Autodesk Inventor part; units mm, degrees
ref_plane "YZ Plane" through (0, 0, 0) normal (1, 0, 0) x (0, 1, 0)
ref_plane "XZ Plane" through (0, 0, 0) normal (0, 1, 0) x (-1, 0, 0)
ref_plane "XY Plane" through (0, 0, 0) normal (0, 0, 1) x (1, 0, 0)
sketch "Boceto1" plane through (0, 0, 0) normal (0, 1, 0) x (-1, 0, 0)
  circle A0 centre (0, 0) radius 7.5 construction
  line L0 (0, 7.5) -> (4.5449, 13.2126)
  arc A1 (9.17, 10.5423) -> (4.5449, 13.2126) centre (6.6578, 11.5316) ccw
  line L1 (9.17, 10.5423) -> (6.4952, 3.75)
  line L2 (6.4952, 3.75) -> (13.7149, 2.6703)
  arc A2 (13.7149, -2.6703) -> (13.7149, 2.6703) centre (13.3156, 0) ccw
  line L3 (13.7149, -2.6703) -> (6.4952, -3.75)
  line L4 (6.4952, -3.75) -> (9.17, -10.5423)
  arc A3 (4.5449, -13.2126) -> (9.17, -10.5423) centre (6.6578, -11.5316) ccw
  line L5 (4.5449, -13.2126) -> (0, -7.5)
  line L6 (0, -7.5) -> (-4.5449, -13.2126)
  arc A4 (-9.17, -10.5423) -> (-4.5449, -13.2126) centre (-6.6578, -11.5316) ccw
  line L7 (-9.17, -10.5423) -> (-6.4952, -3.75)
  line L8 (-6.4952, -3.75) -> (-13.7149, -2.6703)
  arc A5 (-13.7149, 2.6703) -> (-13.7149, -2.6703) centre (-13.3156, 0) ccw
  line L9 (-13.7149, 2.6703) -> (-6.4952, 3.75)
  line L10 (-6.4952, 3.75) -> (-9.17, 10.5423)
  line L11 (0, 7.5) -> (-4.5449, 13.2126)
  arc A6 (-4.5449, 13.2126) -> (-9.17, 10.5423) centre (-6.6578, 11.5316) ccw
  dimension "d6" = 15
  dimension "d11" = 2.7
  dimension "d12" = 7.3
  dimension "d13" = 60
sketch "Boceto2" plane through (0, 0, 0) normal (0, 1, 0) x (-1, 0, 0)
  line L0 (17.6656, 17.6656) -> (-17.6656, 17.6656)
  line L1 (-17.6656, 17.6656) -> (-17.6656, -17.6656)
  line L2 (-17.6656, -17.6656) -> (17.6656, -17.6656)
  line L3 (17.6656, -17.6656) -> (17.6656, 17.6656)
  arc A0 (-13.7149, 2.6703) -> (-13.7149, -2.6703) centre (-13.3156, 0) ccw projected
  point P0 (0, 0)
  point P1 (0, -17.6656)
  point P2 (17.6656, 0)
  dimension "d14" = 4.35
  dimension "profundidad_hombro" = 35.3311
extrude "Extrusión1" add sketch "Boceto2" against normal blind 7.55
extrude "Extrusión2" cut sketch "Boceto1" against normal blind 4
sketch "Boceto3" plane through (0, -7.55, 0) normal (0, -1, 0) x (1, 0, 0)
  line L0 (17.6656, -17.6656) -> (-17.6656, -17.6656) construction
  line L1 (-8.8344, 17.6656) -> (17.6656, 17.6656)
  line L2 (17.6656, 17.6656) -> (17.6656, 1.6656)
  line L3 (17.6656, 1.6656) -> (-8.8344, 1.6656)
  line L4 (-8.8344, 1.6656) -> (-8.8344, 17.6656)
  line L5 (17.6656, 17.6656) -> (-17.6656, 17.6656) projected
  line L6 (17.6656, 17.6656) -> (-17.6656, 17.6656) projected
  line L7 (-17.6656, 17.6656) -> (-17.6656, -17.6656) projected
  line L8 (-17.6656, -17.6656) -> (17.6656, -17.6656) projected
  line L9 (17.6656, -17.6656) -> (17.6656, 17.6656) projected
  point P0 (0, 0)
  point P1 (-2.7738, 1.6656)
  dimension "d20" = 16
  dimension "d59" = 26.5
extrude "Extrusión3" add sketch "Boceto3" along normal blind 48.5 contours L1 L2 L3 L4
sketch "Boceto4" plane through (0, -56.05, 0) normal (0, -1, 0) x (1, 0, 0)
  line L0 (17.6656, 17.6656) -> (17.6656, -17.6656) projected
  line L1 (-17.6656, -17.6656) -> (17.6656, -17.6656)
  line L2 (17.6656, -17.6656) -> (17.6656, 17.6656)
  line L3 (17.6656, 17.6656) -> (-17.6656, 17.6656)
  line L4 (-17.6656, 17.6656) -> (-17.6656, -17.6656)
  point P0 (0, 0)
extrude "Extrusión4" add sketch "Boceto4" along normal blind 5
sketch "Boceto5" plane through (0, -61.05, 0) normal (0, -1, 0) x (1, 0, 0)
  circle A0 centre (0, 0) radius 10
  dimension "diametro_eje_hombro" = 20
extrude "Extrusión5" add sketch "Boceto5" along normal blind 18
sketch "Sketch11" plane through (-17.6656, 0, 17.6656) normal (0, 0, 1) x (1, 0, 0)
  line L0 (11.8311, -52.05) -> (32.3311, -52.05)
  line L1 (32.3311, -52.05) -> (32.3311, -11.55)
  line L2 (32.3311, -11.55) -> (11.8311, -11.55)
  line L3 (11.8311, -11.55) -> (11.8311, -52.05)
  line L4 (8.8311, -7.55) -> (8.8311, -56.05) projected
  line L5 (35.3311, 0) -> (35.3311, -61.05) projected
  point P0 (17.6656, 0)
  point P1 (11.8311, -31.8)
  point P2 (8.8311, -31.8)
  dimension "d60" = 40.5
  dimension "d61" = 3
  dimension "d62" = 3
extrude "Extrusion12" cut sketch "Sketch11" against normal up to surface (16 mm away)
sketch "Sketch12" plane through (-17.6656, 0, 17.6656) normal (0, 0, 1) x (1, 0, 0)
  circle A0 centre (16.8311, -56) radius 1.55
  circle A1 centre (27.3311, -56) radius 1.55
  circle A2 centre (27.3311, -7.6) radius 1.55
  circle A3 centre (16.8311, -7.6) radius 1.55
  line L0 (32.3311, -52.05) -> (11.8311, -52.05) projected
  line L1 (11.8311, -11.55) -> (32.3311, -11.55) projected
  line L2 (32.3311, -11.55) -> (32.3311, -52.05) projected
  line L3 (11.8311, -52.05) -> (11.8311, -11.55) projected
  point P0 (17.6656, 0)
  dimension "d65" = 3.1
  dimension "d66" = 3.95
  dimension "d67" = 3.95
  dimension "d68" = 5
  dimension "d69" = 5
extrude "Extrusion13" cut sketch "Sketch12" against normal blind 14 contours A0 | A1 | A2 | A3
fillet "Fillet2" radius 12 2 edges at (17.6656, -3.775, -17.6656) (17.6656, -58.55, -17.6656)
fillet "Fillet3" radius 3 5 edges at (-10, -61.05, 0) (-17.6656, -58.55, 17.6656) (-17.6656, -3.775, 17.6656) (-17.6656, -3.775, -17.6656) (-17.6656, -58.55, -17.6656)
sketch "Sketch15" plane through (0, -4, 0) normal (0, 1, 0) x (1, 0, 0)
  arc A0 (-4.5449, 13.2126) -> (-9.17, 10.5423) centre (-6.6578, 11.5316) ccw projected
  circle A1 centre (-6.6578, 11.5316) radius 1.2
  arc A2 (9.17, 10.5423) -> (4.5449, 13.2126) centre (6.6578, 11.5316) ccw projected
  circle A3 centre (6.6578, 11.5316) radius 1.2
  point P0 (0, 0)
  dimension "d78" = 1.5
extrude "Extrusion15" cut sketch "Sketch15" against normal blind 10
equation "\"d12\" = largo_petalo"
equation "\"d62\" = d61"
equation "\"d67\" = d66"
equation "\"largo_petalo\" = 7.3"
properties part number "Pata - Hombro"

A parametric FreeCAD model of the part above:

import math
import FreeCAD as App
import Part
import Sketcher


def edges_at(feature, points):
    """Names of the edges that pass closest to the given points."""
    edges = feature.Shape.Edges
    near = lambda p: min(range(len(edges)), key=lambda i: edges[i].distToShape(Part.Vertex(*p))[0])
    return sorted({f"Edge{near(p) + 1}" for p in points})


def add_polygon(sketch, points):
    """Adds a closed chain of lines whose ends are joined by coincident constraints."""
    first, n = sketch.GeometryCount, len(points)
    for a, b in zip(points, points[1:] + points[:1]):
        sketch.addGeometry(Part.LineSegment(App.Vector(*a, 0), App.Vector(*b, 0)), False)
    for i in range(n):
        sketch.addConstraint(Sketcher.Constraint("Coincident", first + i, 2, first + (i + 1) % n, 1))

doc = App.newDocument("Part")
params = doc.addObject("Spreadsheet::Sheet", "Params")
for row, (alias, value) in enumerate([
    ("pad1_length", "7.55 mm"),
    ("sketch2_radius", "2.7 mm"),
    ("sketch2_length", "7.3 mm"),
    ("pocket1_length", "4 mm"),
    ("sketch3_height", "16 mm"),
    ("sketch3_width", "26.5 mm"),
    ("pad2_length", "48.5 mm"),
    ("pad3_length", "5 mm"),
    ("sketch5_diameter", "20 mm"),
    ("pad4_length", "18 mm"),
    ("sketch6_height", "40.5 mm"),
    ("sketch6_width", "20.5 mm"),
    ("pocket2_length", "16 mm"),
    ("sketch7_diameter", "3.1 mm"),
    ("pocket3_length", "14 mm"),
    ("fillet_radius", "12 mm"),
    ("fillet2_radius", "3 mm"),
    ("sketch8_diameter", "2.4 mm"),
    ("pocket4_length", "10 mm"),
], start=1):
    params.set(f"A{row}", alias)
    params.set(f"B{row}", "=" + value)
    params.setAlias(f"B{row}", alias)

body = doc.addObject("PartDesign::Body", "Body")

# Sketch on XZ plane
sketch1 = doc.addObject("Sketcher::SketchObject", "Sketch")
body.addObject(sketch1)
sketch1.AttachmentSupport = (doc.XZ_Plane, [""])
sketch1.MapMode = "FlatFace"
add_polygon(sketch1, [(-18, -18), (-18, 18), (18, 18), (18, -18)])  # lines 0-3
sketch1.addConstraint(Sketcher.Constraint("Vertical", 0))
sketch1.addConstraint(Sketcher.Constraint("Horizontal", 1))
sketch1.addConstraint(Sketcher.Constraint("Vertical", 2))
sketch1.addConstraint(Sketcher.Constraint("Horizontal", 3))
sketch1.addConstraint(Sketcher.Constraint("Symmetric", 0, 2, 2, 2, -1, 1))
sketch1.addConstraint(Sketcher.Constraint("Equal", 3, 0))
sketch1.addConstraint(Sketcher.Constraint("DistanceX", 1, 1, 1, 2, 35.3312))
pad1 = doc.addObject("PartDesign::Pad", "Pad")
body.addObject(pad1)
pad1.Profile = sketch1
pad1.setExpression("Length", "Params.pad1_length")

# Sketch on XZ plane
sketch2 = doc.addObject("Sketcher::SketchObject", "Sketch001")
body.addObject(sketch2)
sketch2.AttachmentSupport = (doc.XZ_Plane, [""])
sketch2.MapMode = "FlatFace"
sketch2.addGeometry(Part.LineSegment(App.Vector(-4.5, 13.2, 0), App.Vector(0, 7.5, 0)), False)
sketch2.addGeometry(Part.LineSegment(App.Vector(0, 7.5, 0), App.Vector(4.5, 13.2, 0)), False)
sketch2.addGeometry(Part.ArcOfCircle(Part.Circle(App.Vector(6.7, 11.5, 0), App.Vector(0, 0, 1), 2.7), math.radians(-21), math.radians(141)), False)
sketch2.addGeometry(Part.LineSegment(App.Vector(9.2, 10.5, 0), App.Vector(6.5, 3.8, 0)), False)
sketch2.addGeometry(Part.LineSegment(App.Vector(6.5, 3.8, 0), App.Vector(13.7, 2.7, 0)), False)
sketch2.addGeometry(Part.ArcOfCircle(Part.Circle(App.Vector(13.3, 0, 0), App.Vector(0, 0, 1), 2.7), math.radians(-81), math.radians(81)), False)
sketch2.addGeometry(Part.LineSegment(App.Vector(13.7, -2.7, 0), App.Vector(6.5, -3.8, 0)), False)
sketch2.addGeometry(Part.LineSegment(App.Vector(6.5, -3.8, 0), App.Vector(9.2, -10.5, 0)), False)
sketch2.addGeometry(Part.ArcOfCircle(Part.Circle(App.Vector(6.7, -11.5, 0), App.Vector(0, 0, 1), 2.7), math.radians(-141), math.radians(21)), False)
sketch2.addGeometry(Part.LineSegment(App.Vector(4.5, -13.2, 0), App.Vector(0, -7.5, 0)), False)
sketch2.addGeometry(Part.LineSegment(App.Vector(0, -7.5, 0), App.Vector(-4.5, -13.2, 0)), False)
sketch2.addGeometry(Part.ArcOfCircle(Part.Circle(App.Vector(-6.7, -11.5, 0), App.Vector(0, 0, 1), 2.7), math.radians(159), math.radians(321)), False)
sketch2.addGeometry(Part.LineSegment(App.Vector(-9.2, -10.5, 0), App.Vector(-6.5, -3.8, 0)), False)
sketch2.addGeometry(Part.LineSegment(App.Vector(-6.5, -3.8, 0), App.Vector(-13.7, -2.7, 0)), False)
sketch2.addGeometry(Part.ArcOfCircle(Part.Circle(App.Vector(-13.3, 0, 0), App.Vector(0, 0, 1), 2.7), math.radians(99), math.radians(261)), False)
sketch2.addGeometry(Part.LineSegment(App.Vector(-13.7, 2.7, 0), App.Vector(-6.5, 3.8, 0)), False)
sketch2.addGeometry(Part.LineSegment(App.Vector(-6.5, 3.8, 0), App.Vector(-9.2, 10.5, 0)), False)
sketch2.addGeometry(Part.ArcOfCircle(Part.Circle(App.Vector(-6.7, 11.5, 0), App.Vector(0, 0, 1), 2.7), math.radians(39), math.radians(201)), False)
sketch2.addConstraint(Sketcher.Constraint("Coincident", 0, 2, 1, 1))
sketch2.addConstraint(Sketcher.Constraint("Tangent", 1, 2, 2, 2))
sketch2.addConstraint(Sketcher.Constraint("Tangent", 2, 1, 3, 1))
sketch2.addConstraint(Sketcher.Constraint("Coincident", 3, 2, 4, 1))
sketch2.addConstraint(Sketcher.Constraint("Tangent", 4, 2, 5, 2))
sketch2.addConstraint(Sketcher.Constraint("Tangent", 5, 1, 6, 1))
sketch2.addConstraint(Sketcher.Constraint("Coincident", 6, 2, 7, 1))
sketch2.addConstraint(Sketcher.Constraint("Tangent", 7, 2, 8, 2))
sketch2.addConstraint(Sketcher.Constraint("Tangent", 8, 1, 9, 1))
sketch2.addConstraint(Sketcher.Constraint("Coincident", 9, 2, 10, 1))
sketch2.addConstraint(Sketcher.Constraint("Tangent", 10, 2, 11, 2))
sketch2.addConstraint(Sketcher.Constraint("Tangent", 11, 1, 12, 1))
sketch2.addConstraint(Sketcher.Constraint("Coincident", 12, 2, 13, 1))
sketch2.addConstraint(Sketcher.Constraint("Tangent", 13, 2, 14, 2))
sketch2.addConstraint(Sketcher.Constraint("Tangent", 14, 1, 15, 1))
sketch2.addConstraint(Sketcher.Constraint("Coincident", 15, 2, 16, 1))
sketch2.addConstraint(Sketcher.Constraint("Tangent", 16, 2, 17, 2))
sketch2.addConstraint(Sketcher.Constraint("Tangent", 17, 1, 0, 1))
sketch2.addConstraint(Sketcher.Constraint("Equal", 2, 5))
sketch2.addConstraint(Sketcher.Constraint("Equal", 5, 8))
sketch2.addConstraint(Sketcher.Constraint("Equal", 8, 11))
sketch2.addConstraint(Sketcher.Constraint("Equal", 11, 14))
sketch2.addConstraint(Sketcher.Constraint("Equal", 14, 17))
sketch2.addConstraint(Sketcher.Constraint("Symmetric", 2, 3, 11, 3, -1, 1))
sketch2.addConstraint(Sketcher.Constraint("Symmetric", 5, 3, 14, 3, -1, 1))
sketch2.addConstraint(Sketcher.Constraint("Symmetric", 8, 3, 17, 3, -1, 1))
sketch2.addConstraint(Sketcher.Constraint("Symmetric", 0, 2, 9, 2, -1, 1))
sketch2.addConstraint(Sketcher.Constraint("Symmetric", 3, 2, 12, 2, -1, 1))
sketch2.addConstraint(Sketcher.Constraint("Symmetric", 6, 2, 15, 2, -1, 1))
sketch2.addConstraint(Sketcher.Constraint("Symmetric", 8, 3, 11, 3, -2))
sketch2.addConstraint(Sketcher.Constraint("Symmetric", 6, 2, 12, 2, -2))
sketch2.addConstraint(Sketcher.Constraint("PointOnObject", 5, 3, -1))
sketch2.addConstraint(Sketcher.Constraint("PointOnObject", 0, 2, -2))
sketch2.addConstraint(Sketcher.Constraint("Equal", 1, 3))
sketch2.addConstraint(Sketcher.Constraint("Equal", 3, 4))
sketch2.addConstraint(Sketcher.Constraint("Radius", 2, 2.7))
sketch2.addConstraint(Sketcher.Constraint("Distance", 0, 7.3))
sketch2.addConstraint(Sketcher.Constraint("DistanceY", -1, 1, 0, 2, 7.5))
sketch2.addConstraint(Sketcher.Constraint("DistanceY", 6, 2, 3, 2, 7.5))
sketch2.addConstraint(Sketcher.Constraint("DistanceX", -1, 1, 2, 1, 9.17))
sketch2.setExpression("Constraints[35]", "Params.sketch2_radius")
sketch2.setExpression("Constraints[36]", "Params.sketch2_length")
pocket1 = doc.addObject("PartDesign::Pocket", "Pocket")
body.addObject(pocket1)
pocket1.Profile = sketch2
pocket1.setExpression("Length", "Params.pocket1_length")
pocket1.Reversed = True

# Sketch on XZ plane
sketch3 = doc.addObject("Sketcher::SketchObject", "Sketch002")
body.addObject(sketch3)
sketch3.AttachmentSupport = (doc.XZ_Plane, [""])
sketch3.MapMode = "FlatFace"
sketch3.AttachmentOffset = App.Placement(App.Vector(0, 0, 7.55), App.Rotation())
add_polygon(sketch3, [(18, 18), (-9, 18), (-9, 2), (18, 2)])  # lines 0-3
sketch3.addConstraint(Sketcher.Constraint("Horizontal", 0))
sketch3.addConstraint(Sketcher.Constraint("Vertical", 1))
sketch3.addConstraint(Sketcher.Constraint("Horizontal", 2))
sketch3.addConstraint(Sketcher.Constraint("Vertical", 3))
sketch3.addConstraint(Sketcher.Constraint("DistanceY", 1, 2, 1, 1, 16.0))
sketch3.addConstraint(Sketcher.Constraint("DistanceX", 0, 2, 0, 1, 26.5))
sketch3.addConstraint(Sketcher.Constraint("DistanceX", 0, 2, -1, 1, 8.8344))
sketch3.addConstraint(Sketcher.Constraint("DistanceY", -1, 1, 0, 2, 17.6656))
sketch3.setExpression("Constraints[8]", "Params.sketch3_height")
sketch3.setExpression("Constraints[9]", "Params.sketch3_width")
pad2 = doc.addObject("PartDesign::Pad", "Pad001")
body.addObject(pad2)
pad2.Profile = sketch3
pad2.setExpression("Length", "Params.pad2_length")

# Sketch on XZ plane
sketch4 = doc.addObject("Sketcher::SketchObject", "Sketch003")
body.addObject(sketch4)
sketch4.AttachmentSupport = (doc.XZ_Plane, [""])
sketch4.MapMode = "FlatFace"
sketch4.AttachmentOffset = App.Placement(App.Vector(0, 0, 56.05), App.Rotation())
add_polygon(sketch4, [(18, -18), (18, 18), (-18, 18), (-18, -18)])  # lines 0-3
sketch4.addConstraint(Sketcher.Constraint("Vertical", 0))
sketch4.addConstraint(Sketcher.Constraint("Horizontal", 1))
sketch4.addConstraint(Sketcher.Constraint("Vertical", 2))
sketch4.addConstraint(Sketcher.Constraint("Horizontal", 3))
sketch4.addConstraint(Sketcher.Constraint("Symmetric", 0, 2, 2, 2, -1, 1))
sketch4.addConstraint(Sketcher.Constraint("Equal", 3, 0))
sketch4.addConstraint(Sketcher.Constraint("DistanceX", 1, 2, 1, 1, 35.3312))
pad3 = doc.addObject("PartDesign::Pad", "Pad002")
body.addObject(pad3)
pad3.Profile = sketch4
pad3.setExpression("Length", "Params.pad3_length")

# Sketch on XZ plane
sketch5 = doc.addObject("Sketcher::SketchObject", "Sketch004")
body.addObject(sketch5)
sketch5.AttachmentSupport = (doc.XZ_Plane, [""])
sketch5.MapMode = "FlatFace"
sketch5.AttachmentOffset = App.Placement(App.Vector(0, 0, 61.05), App.Rotation())
sketch5.addGeometry(Part.Circle(App.Vector(0, 0, 0), App.Vector(0, 0, 1), 10), False)
sketch5.addConstraint(Sketcher.Constraint("Coincident", 0, 3, -1, 1))
sketch5.addConstraint(Sketcher.Constraint("Diameter", 0, 20.0))
sketch5.setExpression("Constraints[1]", "Params.sketch5_diameter")
pad4 = doc.addObject("PartDesign::Pad", "Pad003")
body.addObject(pad4)
pad4.Profile = sketch5
pad4.setExpression("Length", "Params.pad4_length")

# Sketch on XY plane
sketch6 = doc.addObject("Sketcher::SketchObject", "Sketch005")
body.addObject(sketch6)
sketch6.AttachmentSupport = (doc.XY_Plane, [""])
sketch6.MapMode = "FlatFace"
sketch6.AttachmentOffset = App.Placement(App.Vector(0, 0, 17.6656), App.Rotation())
add_polygon(sketch6, [(-6, -12), (-6, -52), (15, -52), (15, -12)])  # lines 0-3
sketch6.addConstraint(Sketcher.Constraint("Vertical", 0))
sketch6.addConstraint(Sketcher.Constraint("Horizontal", 1))
sketch6.addConstraint(Sketcher.Constraint("Vertical", 2))
sketch6.addConstraint(Sketcher.Constraint("Horizontal", 3))
sketch6.addConstraint(Sketcher.Constraint("DistanceY", 0, 2, 0, 1, 40.5))
sketch6.addConstraint(Sketcher.Constraint("DistanceX", 1, 1, 1, 2, 20.5))
sketch6.addConstraint(Sketcher.Constraint("DistanceY", 0, 2, -1, 1, 52.05))
sketch6.addConstraint(Sketcher.Constraint("DistanceX", 0, 2, -1, 1, 5.8345))
sketch6.setExpression("Constraints[8]", "Params.sketch6_height")
sketch6.setExpression("Constraints[9]", "Params.sketch6_width")
pocket2 = doc.addObject("PartDesign::Pocket", "Pocket001")
body.addObject(pocket2)
pocket2.Profile = sketch6
pocket2.setExpression("Length", "Params.pocket2_length")

# Sketch on XY plane
sketch7 = doc.addObject("Sketcher::SketchObject", "Sketch006")
body.addObject(sketch7)
sketch7.AttachmentSupport = (doc.XY_Plane, [""])
sketch7.MapMode = "FlatFace"
sketch7.AttachmentOffset = App.Placement(App.Vector(0, 0, 17.6656), App.Rotation())
sketch7.addGeometry(Part.Circle(App.Vector(-0.8, -56, 0), App.Vector(0, 0, 1), 1.6), False)
sketch7.addGeometry(Part.Circle(App.Vector(9.7, -56, 0), App.Vector(0, 0, 1), 1.6), False)
sketch7.addGeometry(Part.Circle(App.Vector(9.7, -7.6, 0), App.Vector(0, 0, 1), 1.6), False)
sketch7.addGeometry(Part.Circle(App.Vector(-0.8, -7.6, 0), App.Vector(0, 0, 1), 1.6), False)
sketch7.addConstraint(Sketcher.Constraint("Equal", 0, 1))
sketch7.addConstraint(Sketcher.Constraint("Equal", 1, 2))
sketch7.addConstraint(Sketcher.Constraint("Equal", 2, 3))
sketch7.addConstraint(Sketcher.Constraint("Horizontal", 0, 3, 1, 3))
sketch7.addConstraint(Sketcher.Constraint("Horizontal", 2, 3, 3, 3))
sketch7.addConstraint(Sketcher.Constraint("Vertical", 1, 3, 2, 3))
sketch7.addConstraint(Sketcher.Constraint("Vertical", 0, 3, 3, 3))
sketch7.addConstraint(Sketcher.Constraint("Diameter", 0, 3.1))
sketch7.addConstraint(Sketcher.Constraint("DistanceY", 0, 3, -1, 1, 56.0))
sketch7.addConstraint(Sketcher.Constraint("DistanceY", 2, 3, -1, 1, 7.6))
sketch7.addConstraint(Sketcher.Constraint("DistanceX", 0, 3, 1, 3, 10.5))
sketch7.addConstraint(Sketcher.Constraint("DistanceX", 0, 3, -1, 1, 0.8345))
sketch7.setExpression("Constraints[7]", "Params.sketch7_diameter")
pocket3 = doc.addObject("PartDesign::Pocket", "Pocket002")
body.addObject(pocket3)
pocket3.Profile = sketch7
pocket3.setExpression("Length", "Params.pocket3_length")
doc.recompute()

fillet = doc.addObject("PartDesign::Fillet", "Fillet")
body.addObject(fillet)
fillet.Base = (pocket3, edges_at(pocket3, [(17.666, -3.775, -17.666), (17.666, -58.55, -17.666)]))
fillet.setExpression("Radius", "Params.fillet_radius")
doc.recompute()

fillet2 = doc.addObject("PartDesign::Fillet", "Fillet001")
body.addObject(fillet2)
fillet2.Base = (fillet, edges_at(fillet, [
    (-10, -61.05, 0),
    (-17.666, -58.55, 17.666),
    (-17.666, -3.775, 17.666),
    (-17.666, -3.775, -17.666),
    (-17.666, -58.55, -17.666),
]))
fillet2.setExpression("Radius", "Params.fillet2_radius")

# Sketch on XZ plane
sketch8 = doc.addObject("Sketcher::SketchObject", "Sketch007")
body.addObject(sketch8)
sketch8.AttachmentSupport = (doc.XZ_Plane, [""])
sketch8.MapMode = "FlatFace"
sketch8.AttachmentOffset = App.Placement(App.Vector(0, 0, 4), App.Rotation())
sketch8.addGeometry(Part.Circle(App.Vector(-6.7, -11.5, 0), App.Vector(0, 0, 1), 1.2), False)
sketch8.addGeometry(Part.Circle(App.Vector(6.7, -11.5, 0), App.Vector(0, 0, 1), 1.2), False)
sketch8.addConstraint(Sketcher.Constraint("Equal", 0, 1))
sketch8.addConstraint(Sketcher.Constraint("Symmetric", 0, 3, 1, 3, -2))
sketch8.addConstraint(Sketcher.Constraint("Diameter", 0, 2.4))
sketch8.addConstraint(Sketcher.Constraint("DistanceX", 0, 3, -1, 1, 6.6578))
sketch8.addConstraint(Sketcher.Constraint("DistanceY", 0, 3, -1, 1, 11.5316))
sketch8.setExpression("Constraints[2]", "Params.sketch8_diameter")
pocket4 = doc.addObject("PartDesign::Pocket", "Pocket003")
body.addObject(pocket4)
pocket4.Profile = sketch8
pocket4.setExpression("Length", "Params.pocket4_length")
pocket4.Reversed = True

doc.recompute()
